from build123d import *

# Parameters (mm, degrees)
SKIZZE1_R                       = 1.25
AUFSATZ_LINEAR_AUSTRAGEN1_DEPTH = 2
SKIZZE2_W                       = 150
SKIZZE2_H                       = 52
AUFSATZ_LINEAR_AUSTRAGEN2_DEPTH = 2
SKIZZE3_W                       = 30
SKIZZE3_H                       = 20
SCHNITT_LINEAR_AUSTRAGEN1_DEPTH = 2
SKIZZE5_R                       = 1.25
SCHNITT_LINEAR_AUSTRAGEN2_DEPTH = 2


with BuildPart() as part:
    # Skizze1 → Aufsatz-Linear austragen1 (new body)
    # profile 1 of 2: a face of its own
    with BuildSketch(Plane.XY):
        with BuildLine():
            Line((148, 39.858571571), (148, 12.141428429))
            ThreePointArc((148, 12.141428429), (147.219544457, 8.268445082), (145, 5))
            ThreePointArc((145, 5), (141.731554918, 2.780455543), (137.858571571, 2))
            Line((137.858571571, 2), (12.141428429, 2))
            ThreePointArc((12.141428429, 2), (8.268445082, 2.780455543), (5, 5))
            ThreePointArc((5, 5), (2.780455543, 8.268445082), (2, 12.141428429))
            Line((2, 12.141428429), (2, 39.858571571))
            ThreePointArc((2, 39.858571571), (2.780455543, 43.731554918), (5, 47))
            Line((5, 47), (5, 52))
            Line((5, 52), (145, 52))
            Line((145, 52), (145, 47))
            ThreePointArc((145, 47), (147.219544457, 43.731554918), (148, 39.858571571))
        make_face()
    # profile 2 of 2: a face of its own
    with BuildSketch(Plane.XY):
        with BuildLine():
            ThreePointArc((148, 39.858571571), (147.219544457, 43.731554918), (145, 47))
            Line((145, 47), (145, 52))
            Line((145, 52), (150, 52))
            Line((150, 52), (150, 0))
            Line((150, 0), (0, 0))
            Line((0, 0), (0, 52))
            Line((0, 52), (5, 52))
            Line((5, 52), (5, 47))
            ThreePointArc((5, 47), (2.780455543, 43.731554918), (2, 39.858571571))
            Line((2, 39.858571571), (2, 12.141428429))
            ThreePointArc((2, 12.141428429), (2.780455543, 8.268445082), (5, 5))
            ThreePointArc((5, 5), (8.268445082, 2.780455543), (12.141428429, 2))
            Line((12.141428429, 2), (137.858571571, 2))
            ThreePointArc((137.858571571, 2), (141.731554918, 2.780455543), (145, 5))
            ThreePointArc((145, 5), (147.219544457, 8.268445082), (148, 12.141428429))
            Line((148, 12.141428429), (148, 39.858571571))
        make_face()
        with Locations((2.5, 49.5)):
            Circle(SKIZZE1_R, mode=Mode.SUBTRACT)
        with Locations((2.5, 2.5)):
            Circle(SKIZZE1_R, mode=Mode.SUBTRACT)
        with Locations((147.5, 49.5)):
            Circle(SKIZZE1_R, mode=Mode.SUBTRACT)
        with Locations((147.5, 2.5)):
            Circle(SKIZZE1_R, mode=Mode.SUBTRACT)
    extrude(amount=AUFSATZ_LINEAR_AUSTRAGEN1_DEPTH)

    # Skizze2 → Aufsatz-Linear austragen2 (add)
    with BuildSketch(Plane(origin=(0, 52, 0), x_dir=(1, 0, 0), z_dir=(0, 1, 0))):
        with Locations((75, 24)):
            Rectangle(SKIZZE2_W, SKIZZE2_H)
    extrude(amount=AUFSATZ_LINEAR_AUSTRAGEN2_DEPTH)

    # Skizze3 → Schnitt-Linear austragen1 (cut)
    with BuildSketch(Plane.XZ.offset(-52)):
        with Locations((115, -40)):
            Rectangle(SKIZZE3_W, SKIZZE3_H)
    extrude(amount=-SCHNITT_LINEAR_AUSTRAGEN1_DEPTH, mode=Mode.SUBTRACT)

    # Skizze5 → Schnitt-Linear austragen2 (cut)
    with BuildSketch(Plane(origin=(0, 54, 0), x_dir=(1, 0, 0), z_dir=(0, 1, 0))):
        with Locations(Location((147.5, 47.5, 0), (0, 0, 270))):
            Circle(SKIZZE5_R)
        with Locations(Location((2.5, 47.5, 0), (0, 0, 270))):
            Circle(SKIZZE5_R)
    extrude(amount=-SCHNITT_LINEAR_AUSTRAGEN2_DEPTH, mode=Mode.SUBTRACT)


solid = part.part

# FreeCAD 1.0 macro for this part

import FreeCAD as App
import Part
import Sketcher

V = App.Vector
Q = App.Units.Quantity

doc = App.newDocument("Part")
params = doc.addObject("Spreadsheet::Sheet", "Params")
for row, (alias, value) in enumerate([
    ("sketch1_diameter", "2.5 mm"),
    ("sketch1_width", "150 mm"),
    ("sketch1_height", "52 mm"),
    ("pad1_length", "2 mm"),
    ("sketch2_width", "150 mm"),
    ("sketch2_height", "52 mm"),
    ("pad2_length", "2 mm"),
    ("sketch3_width", "30 mm"),
    ("sketch3_height", "20 mm"),
    ("pocket1_length", "2 mm"),
    ("sketch4_diameter", "2.5 mm"),
    ("pocket2_length", "2 mm"),
], start=1):
    params.set(f"A{row}", alias)
    params.set(f"B{row}", "=" + value)
    params.setAlias(f"B{row}", alias)

body = doc.addObject("PartDesign::Body", "Body")

# Sketch on XY plane
sketch1 = doc.addObject("Sketcher::SketchObject", "Sketch")
body.addObject(sketch1)
sketch1.AttachmentSupport = (doc.XY_Plane, [""])
sketch1.MapMode = "FlatFace"
sketch1.addGeometry([
    Part.LineSegment(V(150, 52, 0), V(0, 52, 0)),  # 0
    Part.LineSegment(V(0, 52, 0), V(0, 0, 0)),  # 1
    Part.LineSegment(V(0, 0, 0), V(150, 0, 0)),  # 2
    Part.LineSegment(V(150, 0, 0), V(150, 52, 0)),  # 3
    Part.Circle(V(2.5, 49.5, 0), V(0, 0, 1), 1.2),  # 4
    Part.Circle(V(147.5, 49.5, 0), V(0, 0, 1), 1.2),  # 5
    Part.Circle(V(2.5, 2.5, 0), V(0, 0, 1), 1.2),  # 6
    Part.Circle(V(147.5, 2.5, 0), V(0, 0, 1), 1.2),  # 7
], False)
sketch1.addConstraint([
    Sketcher.Constraint("Coincident", 0, 2, 1, 1),
    Sketcher.Constraint("Coincident", 1, 2, 2, 1),
    Sketcher.Constraint("Coincident", 2, 2, 3, 1),
    Sketcher.Constraint("Coincident", 3, 2, 0, 1),
    Sketcher.Constraint("Horizontal", 0),
    Sketcher.Constraint("Vertical", 1),
    Sketcher.Constraint("Horizontal", 2),
    Sketcher.Constraint("Vertical", 3),
    Sketcher.Constraint("Coincident", 1, 2, -1, 1),
    Sketcher.Constraint("Equal", 4, 5),
    Sketcher.Constraint("Equal", 5, 6),
    Sketcher.Constraint("Equal", 6, 7),
    Sketcher.Constraint("Horizontal", 4, 3, 5, 3),
    Sketcher.Constraint("Horizontal", 6, 3, 7, 3),
    Sketcher.Constraint("Vertical", 4, 3, 6, 3),
    Sketcher.Constraint("Vertical", 5, 3, 7, 3),
    Sketcher.Constraint("Diameter", 4, Q("2.5 mm")),
    Sketcher.Constraint("DistanceX", 0, 2, 0, 1, Q("150 mm")),
    Sketcher.Constraint("DistanceY", 1, 2, 1, 1, Q("52 mm")),
    Sketcher.Constraint("DistanceX", 4, 3, 5, 3, Q("145 mm")),
    Sketcher.Constraint("DistanceY", 6, 3, 4, 3, Q("47 mm")),
    Sketcher.Constraint("DistanceX", -1, 1, 4, 3, Q("2.5 mm")),
    Sketcher.Constraint("DistanceY", -1, 1, 4, 3, Q("49.5 mm")),
])
sketch1.setExpression("Constraints[16]", "Params.sketch1_diameter")
sketch1.setExpression("Constraints[17]", "Params.sketch1_width")
sketch1.setExpression("Constraints[18]", "Params.sketch1_height")
pad1 = doc.addObject("PartDesign::Pad", "Pad")
body.addObject(pad1)
pad1.Profile = sketch1
pad1.setExpression("Length", "Params.pad1_length")

# Sketch on XZ plane
sketch2 = doc.addObject("Sketcher::SketchObject", "Sketch001")
body.addObject(sketch2)
sketch2.AttachmentSupport = (doc.XZ_Plane, [""])
sketch2.MapMode = "FlatFace"
sketch2.AttachmentOffset = App.Placement(V(0, 0, -52), App.Rotation())
sketch2.addGeometry([
    Part.LineSegment(V(0, -50, 0), V(0, 2, 0)),
    Part.LineSegment(V(0, 2, 0), V(150, 2, 0)),
    Part.LineSegment(V(150, 2, 0), V(150, -50, 0)),
    Part.LineSegment(V(150, -50, 0), V(0, -50, 0)),
], False)
sketch2.addConstraint([
    Sketcher.Constraint("Coincident", 0, 2, 1, 1),
    Sketcher.Constraint("Coincident", 1, 2, 2, 1),
    Sketcher.Constraint("Coincident", 2, 2, 3, 1),
    Sketcher.Constraint("Coincident", 3, 2, 0, 1),
    Sketcher.Constraint("Vertical", 0),
    Sketcher.Constraint("Horizontal", 1),
    Sketcher.Constraint("Vertical", 2),
    Sketcher.Constraint("Horizontal", 3),
    Sketcher.Constraint("PointOnObject", 0, 2, -2),
    Sketcher.Constraint("DistanceX", 1, 1, 1, 2, Q("150 mm")),
    Sketcher.Constraint("DistanceY", 0, 1, 0, 2, Q("52 mm")),
    Sketcher.Constraint("DistanceY", -1, 1, 0, 2, Q("2 mm")),
])
sketch2.setExpression("Constraints[9]", "Params.sketch2_width")
sketch2.setExpression("Constraints[10]", "Params.sketch2_height")
pad2 = doc.addObject("PartDesign::Pad", "Pad001")
body.addObject(pad2)
pad2.Profile = sketch2
pad2.setExpression("Length", "Params.pad2_length")
pad2.Reversed = True

# Sketch on XZ plane
sketch3 = doc.addObject("Sketcher::SketchObject", "Sketch002")
body.addObject(sketch3)
sketch3.AttachmentSupport = (doc.XZ_Plane, [""])
sketch3.MapMode = "FlatFace"
sketch3.AttachmentOffset = App.Placement(V(0, 0, -52), App.Rotation())
sketch3.addGeometry([
    Part.LineSegment(V(100, -30, 0), V(100, -50, 0)),
    Part.LineSegment(V(100, -50, 0), V(130, -50, 0)),
    Part.LineSegment(V(130, -50, 0), V(130, -30, 0)),
    Part.LineSegment(V(130, -30, 0), V(100, -30, 0)),
], False)
sketch3.addConstraint([
    Sketcher.Constraint("Coincident", 0, 2, 1, 1),
    Sketcher.Constraint("Coincident", 1, 2, 2, 1),
    Sketcher.Constraint("Coincident", 2, 2, 3, 1),
    Sketcher.Constraint("Coincident", 3, 2, 0, 1),
    Sketcher.Constraint("Vertical", 0),
    Sketcher.Constraint("Horizontal", 1),
    Sketcher.Constraint("Vertical", 2),
    Sketcher.Constraint("Horizontal", 3),
    Sketcher.Constraint("DistanceX", 1, 1, 1, 2, Q("30 mm")),
    Sketcher.Constraint("DistanceY", 0, 2, 0, 1, Q("20 mm")),
    Sketcher.Constraint("DistanceX", -1, 1, 0, 2, Q("100 mm")),
    Sketcher.Constraint("DistanceY", 0, 2, -1, 1, Q("50 mm")),
])
sketch3.setExpression("Constraints[8]", "Params.sketch3_width")
sketch3.setExpression("Constraints[9]", "Params.sketch3_height")
pocket1 = doc.addObject("PartDesign::Pocket", "Pocket")
body.addObject(pocket1)
pocket1.Profile = sketch3
pocket1.setExpression("Length", "Params.pocket1_length")

# Sketch on XZ plane
sketch4 = doc.addObject("Sketcher::SketchObject", "Sketch003")
body.addObject(sketch4)
sketch4.AttachmentSupport = (doc.XZ_Plane, [""])
sketch4.MapMode = "FlatFace"
sketch4.AttachmentOffset = App.Placement(V(0, 0, -54), App.Rotation())
sketch4.addGeometry([
    Part.Circle(V(147.5, -47.5, 0), V(0, 0, 1), 1.2),
    Part.Circle(V(2.5, -47.5, 0), V(0, 0, 1), 1.2),
], False)
sketch4.addConstraint([
    Sketcher.Constraint("Equal", 0, 1),
    Sketcher.Constraint("Horizontal", 0, 3, 1, 3),
    Sketcher.Constraint("Diameter", 0, Q("2.5 mm")),
    Sketcher.Constraint("DistanceX", 1, 3, 0, 3, Q("145 mm")),
    Sketcher.Constraint("DistanceX", -1, 1, 0, 3, Q("147.5 mm")),
    Sketcher.Constraint("DistanceY", 0, 3, -1, 1, Q("47.5 mm")),
])
sketch4.setExpression("Constraints[2]", "Params.sketch4_diameter")
pocket2 = doc.addObject("PartDesign::Pocket", "Pocket001")
body.addObject(pocket2)
pocket2.Profile = sketch4
pocket2.setExpression("Length", "Params.pocket2_length")
pocket2.Reversed = True

doc.recompute()
